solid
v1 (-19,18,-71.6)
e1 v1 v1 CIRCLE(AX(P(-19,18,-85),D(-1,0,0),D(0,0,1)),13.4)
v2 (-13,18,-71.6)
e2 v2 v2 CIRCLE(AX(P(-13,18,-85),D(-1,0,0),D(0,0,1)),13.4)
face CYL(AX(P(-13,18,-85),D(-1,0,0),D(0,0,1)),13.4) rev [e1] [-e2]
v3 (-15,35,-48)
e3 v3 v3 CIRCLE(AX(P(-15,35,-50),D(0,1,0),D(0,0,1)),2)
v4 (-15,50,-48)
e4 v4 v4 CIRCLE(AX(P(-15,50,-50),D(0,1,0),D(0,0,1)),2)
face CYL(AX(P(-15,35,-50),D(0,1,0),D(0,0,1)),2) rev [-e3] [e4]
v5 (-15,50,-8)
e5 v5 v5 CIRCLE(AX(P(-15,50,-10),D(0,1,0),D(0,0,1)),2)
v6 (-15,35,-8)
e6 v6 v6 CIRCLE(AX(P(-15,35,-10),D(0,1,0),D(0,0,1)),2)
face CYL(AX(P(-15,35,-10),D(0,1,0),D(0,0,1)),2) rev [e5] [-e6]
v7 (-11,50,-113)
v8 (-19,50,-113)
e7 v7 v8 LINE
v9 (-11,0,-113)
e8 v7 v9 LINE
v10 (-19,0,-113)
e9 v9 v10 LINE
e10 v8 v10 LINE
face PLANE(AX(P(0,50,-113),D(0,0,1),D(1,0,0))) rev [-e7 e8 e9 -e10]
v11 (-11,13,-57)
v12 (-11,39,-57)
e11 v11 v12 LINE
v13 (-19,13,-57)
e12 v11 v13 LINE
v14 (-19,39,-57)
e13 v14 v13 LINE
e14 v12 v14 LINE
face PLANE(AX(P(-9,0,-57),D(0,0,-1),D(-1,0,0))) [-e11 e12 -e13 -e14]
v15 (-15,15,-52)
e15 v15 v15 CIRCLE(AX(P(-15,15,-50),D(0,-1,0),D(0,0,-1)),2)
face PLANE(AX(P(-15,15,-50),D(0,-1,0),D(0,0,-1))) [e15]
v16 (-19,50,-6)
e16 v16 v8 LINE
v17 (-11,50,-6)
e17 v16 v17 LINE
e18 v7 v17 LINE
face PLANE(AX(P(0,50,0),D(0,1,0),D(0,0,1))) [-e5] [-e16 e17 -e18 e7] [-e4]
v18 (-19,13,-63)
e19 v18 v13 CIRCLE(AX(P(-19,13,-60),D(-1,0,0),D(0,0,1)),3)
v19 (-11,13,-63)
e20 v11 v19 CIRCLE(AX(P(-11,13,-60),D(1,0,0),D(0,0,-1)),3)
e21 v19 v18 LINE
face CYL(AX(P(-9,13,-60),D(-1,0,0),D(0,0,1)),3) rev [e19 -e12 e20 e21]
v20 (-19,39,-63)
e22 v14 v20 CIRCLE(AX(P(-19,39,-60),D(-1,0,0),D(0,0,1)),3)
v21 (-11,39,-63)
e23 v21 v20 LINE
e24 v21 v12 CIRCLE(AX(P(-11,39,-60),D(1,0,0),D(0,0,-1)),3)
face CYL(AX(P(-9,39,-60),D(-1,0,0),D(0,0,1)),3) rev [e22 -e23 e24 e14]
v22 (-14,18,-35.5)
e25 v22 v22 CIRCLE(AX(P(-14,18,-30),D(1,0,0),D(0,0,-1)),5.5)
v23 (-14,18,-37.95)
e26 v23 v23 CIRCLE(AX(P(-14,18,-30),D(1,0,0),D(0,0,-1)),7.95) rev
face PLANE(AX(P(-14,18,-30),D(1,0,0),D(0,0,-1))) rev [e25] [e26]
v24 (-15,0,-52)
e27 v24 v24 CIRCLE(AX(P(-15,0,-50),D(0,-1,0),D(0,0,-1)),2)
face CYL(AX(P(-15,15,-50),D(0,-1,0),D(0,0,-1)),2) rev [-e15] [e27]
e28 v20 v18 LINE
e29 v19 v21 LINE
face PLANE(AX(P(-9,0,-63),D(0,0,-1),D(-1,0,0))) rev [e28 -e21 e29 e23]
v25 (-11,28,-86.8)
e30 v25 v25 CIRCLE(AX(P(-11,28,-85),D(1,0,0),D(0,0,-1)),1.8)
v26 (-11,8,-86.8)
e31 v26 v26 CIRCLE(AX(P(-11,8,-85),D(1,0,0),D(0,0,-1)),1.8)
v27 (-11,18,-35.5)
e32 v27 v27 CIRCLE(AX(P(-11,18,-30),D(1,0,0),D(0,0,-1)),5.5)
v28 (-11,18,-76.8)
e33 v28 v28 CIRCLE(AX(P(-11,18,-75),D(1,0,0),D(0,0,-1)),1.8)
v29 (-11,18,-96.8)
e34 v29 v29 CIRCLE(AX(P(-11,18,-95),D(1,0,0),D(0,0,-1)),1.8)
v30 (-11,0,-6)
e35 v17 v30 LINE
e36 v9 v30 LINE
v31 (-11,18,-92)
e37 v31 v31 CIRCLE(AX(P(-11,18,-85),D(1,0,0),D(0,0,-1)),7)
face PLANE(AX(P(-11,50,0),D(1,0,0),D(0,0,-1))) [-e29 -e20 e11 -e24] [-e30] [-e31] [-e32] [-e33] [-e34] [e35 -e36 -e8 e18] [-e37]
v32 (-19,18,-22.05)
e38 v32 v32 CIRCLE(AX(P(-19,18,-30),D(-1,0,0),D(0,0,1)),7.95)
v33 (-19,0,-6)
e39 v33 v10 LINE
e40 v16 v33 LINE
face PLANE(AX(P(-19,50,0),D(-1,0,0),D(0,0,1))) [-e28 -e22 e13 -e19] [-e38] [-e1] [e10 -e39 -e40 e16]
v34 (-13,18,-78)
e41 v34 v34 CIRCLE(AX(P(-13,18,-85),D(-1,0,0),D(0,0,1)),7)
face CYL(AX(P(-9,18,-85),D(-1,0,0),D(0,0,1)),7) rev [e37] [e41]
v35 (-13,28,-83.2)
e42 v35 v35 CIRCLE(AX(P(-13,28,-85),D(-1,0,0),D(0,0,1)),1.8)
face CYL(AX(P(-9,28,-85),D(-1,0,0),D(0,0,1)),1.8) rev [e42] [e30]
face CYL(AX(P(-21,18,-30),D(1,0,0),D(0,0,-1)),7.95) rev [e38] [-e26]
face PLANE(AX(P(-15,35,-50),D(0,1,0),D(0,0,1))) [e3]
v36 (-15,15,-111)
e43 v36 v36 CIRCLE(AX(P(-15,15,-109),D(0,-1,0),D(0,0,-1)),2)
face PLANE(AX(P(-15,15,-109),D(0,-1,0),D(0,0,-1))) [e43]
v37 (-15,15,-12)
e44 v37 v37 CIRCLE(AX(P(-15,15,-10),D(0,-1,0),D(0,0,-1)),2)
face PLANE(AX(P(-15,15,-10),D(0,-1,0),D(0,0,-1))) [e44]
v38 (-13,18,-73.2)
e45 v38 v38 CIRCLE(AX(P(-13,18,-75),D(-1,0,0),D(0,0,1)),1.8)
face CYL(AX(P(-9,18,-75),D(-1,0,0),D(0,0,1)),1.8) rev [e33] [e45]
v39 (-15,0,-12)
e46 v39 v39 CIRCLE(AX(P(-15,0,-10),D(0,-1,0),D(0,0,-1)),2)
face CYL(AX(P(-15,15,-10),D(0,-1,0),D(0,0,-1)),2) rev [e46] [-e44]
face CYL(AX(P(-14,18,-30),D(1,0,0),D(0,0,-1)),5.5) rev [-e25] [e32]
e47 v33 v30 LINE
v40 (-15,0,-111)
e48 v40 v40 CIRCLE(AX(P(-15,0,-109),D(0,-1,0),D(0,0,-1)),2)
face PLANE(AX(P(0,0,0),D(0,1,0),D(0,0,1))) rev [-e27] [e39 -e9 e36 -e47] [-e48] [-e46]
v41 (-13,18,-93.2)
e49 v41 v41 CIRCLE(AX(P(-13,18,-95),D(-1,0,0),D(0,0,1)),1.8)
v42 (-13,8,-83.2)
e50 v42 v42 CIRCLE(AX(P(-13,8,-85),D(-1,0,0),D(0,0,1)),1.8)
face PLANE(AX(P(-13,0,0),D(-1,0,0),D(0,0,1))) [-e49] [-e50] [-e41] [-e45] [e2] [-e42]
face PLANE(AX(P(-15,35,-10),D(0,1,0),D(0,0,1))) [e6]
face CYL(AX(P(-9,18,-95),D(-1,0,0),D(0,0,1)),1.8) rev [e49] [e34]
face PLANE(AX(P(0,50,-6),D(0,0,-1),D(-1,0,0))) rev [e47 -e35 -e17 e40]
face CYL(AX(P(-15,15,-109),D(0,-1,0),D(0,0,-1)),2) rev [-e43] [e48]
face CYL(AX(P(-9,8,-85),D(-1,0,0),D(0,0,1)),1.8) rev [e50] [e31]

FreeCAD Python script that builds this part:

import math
import FreeCAD as App
import Part
import Sketcher
Q = App.Units.Quantity


def add_polygon(sketch, points):
    """Adds a closed chain of lines whose ends are joined by coincident constraints."""
    first, n = sketch.GeometryCount, len(points)
    for a, b in zip(points, points[1:] + points[:1]):
        sketch.addGeometry(Part.LineSegment(App.Vector(*a, 0), App.Vector(*b, 0)), False)
    for i in range(n):
        sketch.addConstraint(Sketcher.Constraint("Coincident", first + i, 2, first + (i + 1) % n, 1))

doc = App.newDocument("Part")
params = doc.addObject("Spreadsheet::Sheet", "Params")
for row, (alias, value) in enumerate([
    ("sketch1_width", "8 mm"),
    ("sketch1_height", "107 mm"),
    ("pad1_length", "50 mm"),
    ("sketch2_diameter", "3.6 mm"),
    ("pocket1_length", "10 mm"),
    ("sketch3_diameter", "14 mm"),
    ("sketch3_diameter2", "26.8 mm"),
    ("sketch3_diameter3", "3.6 mm"),
    ("pocket2_length", "6 mm"),
    ("sketch4_diameter", "14 mm"),
    ("pocket3_length", "10 mm"),
    ("sketch5_radius", "3 mm"),
    ("sketch5_width", "26 mm"),
    ("pocket4_length", "10 mm"),
    ("sketch6_diameter", "15.9 mm"),
    ("pocket5_length", "10 mm"),
    ("sketch7_diameter", "11 mm"),
    ("sketch7_diameter2", "16.4 mm"),
    ("pad2_length", "3 mm"),
    ("sketch8_diameter", "4 mm"),
    ("pocket6_length", "15 mm"),
    ("sketch9_diameter", "4 mm"),
    ("pocket7_length", "15 mm"),
], start=1):
    params.set(f"A{row}", alias)
    params.set(f"B{row}", "=" + value)
    params.setAlias(f"B{row}", alias)

body = doc.addObject("PartDesign::Body", "Body")

# Sketch on XZ plane
sketch1 = body.newObject("Sketcher::SketchObject", "Sketch")
sketch1.AttachmentSupport = (doc.getObject("XZ_Plane"), [""])
sketch1.MapMode = "FlatFace"
add_polygon(sketch1, [(-19, -113), (-19, -6), (-11, -6), (-11, -113)])  # lines 0-3
sketch1.addConstraint([
    Sketcher.Constraint("Vertical", 0),
    Sketcher.Constraint("Horizontal", 1),
    Sketcher.Constraint("Vertical", 2),
    Sketcher.Constraint("Horizontal", 3),
    Sketcher.Constraint("DistanceX", 1, 1, 1, 2, Q("8 mm")),
    Sketcher.Constraint("DistanceY", 0, 1, 0, 2, Q("107 mm")),
    Sketcher.Constraint("DistanceX", 0, 2, -1, 1, Q("19 mm")),
    Sketcher.Constraint("DistanceY", 0, 2, -1, 1, Q("6 mm")),
])
sketch1.setExpression("Constraints[8]", "Params.sketch1_width")
sketch1.setExpression("Constraints[9]", "Params.sketch1_height")
pad1 = body.newObject("PartDesign::Pad", "Pad")
pad1.Profile = sketch1
pad1.setExpression("Length", "Params.pad1_length")
pad1.Reversed = True

# Sketch on YZ plane
sketch2 = body.newObject("Sketcher::SketchObject", "Sketch001")
sketch2.AttachmentSupport = (doc.getObject("YZ_Plane"), [""])
sketch2.MapMode = "FlatFace"
sketch2.AttachmentOffset = App.Placement(App.Vector(0, 0, -19), App.Rotation())
sketch2.addGeometry([
    Part.Circle(App.Vector(18, -95, 0), App.Vector(0, 0, 1), 1.8),
    Part.Circle(App.Vector(28, -85, 0), App.Vector(0, 0, 1), 1.8),
    Part.Circle(App.Vector(8, -85, 0), App.Vector(0, 0, 1), 1.8),
    Part.Circle(App.Vector(18, -75, 0), App.Vector(0, 0, 1), 1.8),
], False)
sketch2.addConstraint([
    Sketcher.Constraint("Equal", 0, 1),
    Sketcher.Constraint("Equal", 1, 2),
    Sketcher.Constraint("Equal", 2, 3),
    Sketcher.Constraint("Horizontal", 1, 3, 2, 3),
    Sketcher.Constraint("Vertical", 0, 3, 3, 3),
    Sketcher.Constraint("Diameter", 0, Q("3.6 mm")),
    Sketcher.Constraint("DistanceX", -1, 1, 0, 3, Q("18 mm")),
    Sketcher.Constraint("DistanceY", 0, 3, -1, 1, Q("95 mm")),
    Sketcher.Constraint("DistanceX", -1, 1, 1, 3, Q("28 mm")),
    Sketcher.Constraint("DistanceY", 1, 3, -1, 1, Q("85 mm")),
    Sketcher.Constraint("DistanceX", -1, 1, 2, 3, Q("8 mm")),
    Sketcher.Constraint("DistanceY", 3, 3, -1, 1, Q("75 mm")),
])
sketch2.setExpression("Constraints[5]", "Params.sketch2_diameter")
pocket1 = body.newObject("PartDesign::Pocket", "Pocket")
pocket1.Profile = sketch2
pocket1.setExpression("Length", "Params.pocket1_length")
pocket1.Reversed = True

# Sketch on YZ plane
sketch3 = body.newObject("Sketcher::SketchObject", "Sketch002")
sketch3.AttachmentSupport = (doc.getObject("YZ_Plane"), [""])
sketch3.MapMode = "FlatFace"
sketch3.AttachmentOffset = App.Placement(App.Vector(0, 0, -19), App.Rotation())
sketch3.addGeometry([
    Part.Circle(App.Vector(18, -85, 0), App.Vector(0, 0, 1), 13.4),  # 0
    Part.Circle(App.Vector(8, -85, 0), App.Vector(0, 0, 1), 1.8),  # 1
    Part.Circle(App.Vector(18, -95, 0), App.Vector(0, 0, 1), 1.8),  # 2
    Part.Circle(App.Vector(18, -85, 0), App.Vector(0, 0, 1), 7),  # 3
    Part.Circle(App.Vector(18, -75, 0), App.Vector(0, 0, 1), 1.8),  # 4
    Part.Circle(App.Vector(28, -85, 0), App.Vector(0, 0, 1), 1.8),  # 5
], False)
sketch3.addConstraint([
    Sketcher.Constraint("Coincident", 3, 3, 0, 3),
    Sketcher.Constraint("Equal", 1, 2),
    Sketcher.Constraint("Equal", 2, 4),
    Sketcher.Constraint("Equal", 4, 5),
    Sketcher.Constraint("Horizontal", 0, 3, 1, 3),
    Sketcher.Constraint("Horizontal", 3, 3, 5, 3),
    Sketcher.Constraint("Vertical", 0, 3, 2, 3),
    Sketcher.Constraint("Vertical", 3, 3, 4, 3),
    Sketcher.Constraint("Diameter", 3, Q("14 mm")),
    Sketcher.Constraint("Diameter", 0, Q("26.8 mm")),
    Sketcher.Constraint("Diameter", 1, Q("3.6 mm")),
    Sketcher.Constraint("DistanceX", -1, 1, 0, 3, Q("18 mm")),
    Sketcher.Constraint("DistanceY", 0, 3, -1, 1, Q("85 mm")),
    Sketcher.Constraint("DistanceX", -1, 1, 1, 3, Q("8 mm")),
    Sketcher.Constraint("DistanceY", 2, 3, -1, 1, Q("95 mm")),
    Sketcher.Constraint("DistanceY", 4, 3, -1, 1, Q("75 mm")),
    Sketcher.Constraint("DistanceX", -1, 1, 5, 3, Q("28 mm")),
])
sketch3.setExpression("Constraints[8]", "Params.sketch3_diameter")
sketch3.setExpression("Constraints[9]", "Params.sketch3_diameter2")
sketch3.setExpression("Constraints[10]", "Params.sketch3_diameter3")
pocket2 = body.newObject("PartDesign::Pocket", "Pocket001")
pocket2.Profile = sketch3
pocket2.setExpression("Length", "Params.pocket2_length")
pocket2.Reversed = True

# Sketch on YZ plane
sketch4 = body.newObject("Sketcher::SketchObject", "Sketch003")
sketch4.AttachmentSupport = (doc.getObject("YZ_Plane"), [""])
sketch4.MapMode = "FlatFace"
sketch4.AttachmentOffset = App.Placement(App.Vector(0, 0, -19), App.Rotation())
sketch4.addGeometry(Part.Circle(App.Vector(18, -85, 0), App.Vector(0, 0, 1), 7), False)
sketch4.addConstraint([
    Sketcher.Constraint("Diameter", 0, Q("14 mm")),
    Sketcher.Constraint("DistanceX", -1, 1, 0, 3, Q("18 mm")),
    Sketcher.Constraint("DistanceY", 0, 3, -1, 1, Q("85 mm")),
])
sketch4.setExpression("Constraints[0]", "Params.sketch4_diameter")
pocket3 = body.newObject("PartDesign::Pocket", "Pocket002")
pocket3.Profile = sketch4
pocket3.setExpression("Length", "Params.pocket3_length")
pocket3.Reversed = True

# Sketch on YZ plane
sketch5 = body.newObject("Sketcher::SketchObject", "Sketch004")
sketch5.AttachmentSupport = (doc.getObject("YZ_Plane"), [""])
sketch5.MapMode = "FlatFace"
sketch5.AttachmentOffset = App.Placement(App.Vector(0, 0, -19), App.Rotation())
sketch5.addGeometry([
    Part.ArcOfCircle(Part.Circle(App.Vector(39, -60, 0), App.Vector(0, 0, 1), 3), math.radians(-90), math.radians(90)),
    Part.LineSegment(App.Vector(39, -63, 0), App.Vector(13, -63, 0)),
    Part.ArcOfCircle(Part.Circle(App.Vector(13, -60, 0), App.Vector(0, 0, 1), 3), math.radians(90), math.radians(270)),
    Part.LineSegment(App.Vector(13, -57, 0), App.Vector(39, -57, 0)),
], False)
sketch5.addConstraint([
    Sketcher.Constraint("Tangent", 0, 1, 1, 1),
    Sketcher.Constraint("Tangent", 1, 2, 2, 2),
    Sketcher.Constraint("Tangent", 2, 1, 3, 1),
    Sketcher.Constraint("Tangent", 3, 2, 0, 2),
    Sketcher.Constraint("Horizontal", 1),
    Sketcher.Constraint("Horizontal", 3),
    Sketcher.Constraint("Radius", 0, Q("3 mm")),
    Sketcher.Constraint("DistanceX", 1, 2, 1, 1, Q("26 mm")),
    Sketcher.Constraint("DistanceX", -1, 1, 0, 3, Q("39 mm")),
    Sketcher.Constraint("DistanceY", 0, 3, -1, 1, Q("60 mm")),
])
sketch5.setExpression("Constraints[6]", "Params.sketch5_radius")
sketch5.setExpression("Constraints[7]", "Params.sketch5_width")
pocket4 = body.newObject("PartDesign::Pocket", "Pocket003")
pocket4.Profile = sketch5
pocket4.setExpression("Length", "Params.pocket4_length")
pocket4.Reversed = True

# Sketch on YZ plane
sketch6 = body.newObject("Sketcher::SketchObject", "Sketch005")
sketch6.AttachmentSupport = (doc.getObject("YZ_Plane"), [""])
sketch6.MapMode = "FlatFace"
sketch6.AttachmentOffset = App.Placement(App.Vector(0, 0, -11), App.Rotation())
sketch6.addGeometry(Part.Circle(App.Vector(18, -30, 0), App.Vector(0, 0, 1), 8), False)
sketch6.addConstraint([
    Sketcher.Constraint("Diameter", 0, Q("15.9 mm")),
    Sketcher.Constraint("DistanceX", -1, 1, 0, 3, Q("18 mm")),
    Sketcher.Constraint("DistanceY", 0, 3, -1, 1, Q("30 mm")),
])
sketch6.setExpression("Constraints[0]", "Params.sketch6_diameter")
pocket5 = body.newObject("PartDesign::Pocket", "Pocket004")
pocket5.Profile = sketch6
pocket5.setExpression("Length", "Params.pocket5_length")

# Sketch on YZ plane
sketch7 = body.newObject("Sketcher::SketchObject", "Sketch006")
sketch7.AttachmentSupport = (doc.getObject("YZ_Plane"), [""])
sketch7.MapMode = "FlatFace"
sketch7.AttachmentOffset = App.Placement(App.Vector(0, 0, -11), App.Rotation())
sketch7.addGeometry([
    Part.Circle(App.Vector(18, -30, 0), App.Vector(0, 0, 1), 8),
    Part.Circle(App.Vector(18, -30, 0), App.Vector(0, 0, 1), 6),
], False)
sketch7.addConstraint([
    Sketcher.Constraint("Coincident", 1, 3, 0, 3),
    Sketcher.Constraint("Diameter", 1, Q("11 mm")),
    Sketcher.Constraint("Diameter", 0, Q("16.4 mm")),
    Sketcher.Constraint("DistanceX", -1, 1, 0, 3, Q("18 mm")),
    Sketcher.Constraint("DistanceY", 0, 3, -1, 1, Q("30 mm")),
])
sketch7.setExpression("Constraints[1]", "Params.sketch7_diameter")
sketch7.setExpression("Constraints[2]", "Params.sketch7_diameter2")
pad2 = body.newObject("PartDesign::Pad", "Pad001")
pad2.Profile = sketch7
pad2.setExpression("Length", "Params.pad2_length")
pad2.Reversed = True

# Sketch on XZ plane
sketch8 = body.newObject("Sketcher::SketchObject", "Sketch007")
sketch8.AttachmentSupport = (doc.getObject("XZ_Plane"), [""])
sketch8.MapMode = "FlatFace"
sketch8.addGeometry([
    Part.Circle(App.Vector(-15, -109, 0), App.Vector(0, 0, 1), 2),
    Part.Circle(App.Vector(-15, -10, 0), App.Vector(0, 0, 1), 2),
    Part.Circle(App.Vector(-15, -50, 0), App.Vector(0, 0, 1), 2),
], False)
sketch8.addConstraint([
    Sketcher.Constraint("Equal", 0, 1),
    Sketcher.Constraint("Equal", 1, 2),
    Sketcher.Constraint("Vertical", 0, 3, 1, 3),
    Sketcher.Constraint("Vertical", 1, 3, 2, 3),
    Sketcher.Constraint("Diameter", 0, Q("4 mm")),
    Sketcher.Constraint("DistanceX", 0, 3, -1, 1, Q("15 mm")),
    Sketcher.Constraint("DistanceY", 0, 3, -1, 1, Q("109 mm")),
    Sketcher.Constraint("DistanceY", 1, 3, -1, 1, Q("10 mm")),
    Sketcher.Constraint("DistanceY", 2, 3, -1, 1, Q("50 mm")),
])
sketch8.setExpression("Constraints[4]", "Params.sketch8_diameter")
pocket6 = body.newObject("PartDesign::Pocket", "Pocket005")
pocket6.Profile = sketch8
pocket6.setExpression("Length", "Params.pocket6_length")

# Sketch on XZ plane
sketch9 = body.newObject("Sketcher::SketchObject", "Sketch008")
sketch9.AttachmentSupport = (doc.getObject("XZ_Plane"), [""])
sketch9.MapMode = "FlatFace"
sketch9.AttachmentOffset = App.Placement(App.Vector(0, 0, -35), App.Rotation())
sketch9.addGeometry([
    Part.Circle(App.Vector(-15, -10, 0), App.Vector(0, 0, 1), 2),
    Part.Circle(App.Vector(-15, -50, 0), App.Vector(0, 0, 1), 2),
], False)
sketch9.addConstraint([
    Sketcher.Constraint("Equal", 0, 1),
    Sketcher.Constraint("Vertical", 0, 3, 1, 3),
    Sketcher.Constraint("Diameter", 0, Q("4 mm")),
    Sketcher.Constraint("DistanceX", 0, 3, -1, 1, Q("15 mm")),
    Sketcher.Constraint("DistanceY", 0, 3, -1, 1, Q("10 mm")),
    Sketcher.Constraint("DistanceY", 1, 3, -1, 1, Q("50 mm")),
])
sketch9.setExpression("Constraints[2]", "Params.sketch9_diameter")
pocket7 = body.newObject("PartDesign::Pocket", "Pocket006")
pocket7.Profile = sketch9
pocket7.setExpression("Length", "Params.pocket7_length")

doc.recompute()
